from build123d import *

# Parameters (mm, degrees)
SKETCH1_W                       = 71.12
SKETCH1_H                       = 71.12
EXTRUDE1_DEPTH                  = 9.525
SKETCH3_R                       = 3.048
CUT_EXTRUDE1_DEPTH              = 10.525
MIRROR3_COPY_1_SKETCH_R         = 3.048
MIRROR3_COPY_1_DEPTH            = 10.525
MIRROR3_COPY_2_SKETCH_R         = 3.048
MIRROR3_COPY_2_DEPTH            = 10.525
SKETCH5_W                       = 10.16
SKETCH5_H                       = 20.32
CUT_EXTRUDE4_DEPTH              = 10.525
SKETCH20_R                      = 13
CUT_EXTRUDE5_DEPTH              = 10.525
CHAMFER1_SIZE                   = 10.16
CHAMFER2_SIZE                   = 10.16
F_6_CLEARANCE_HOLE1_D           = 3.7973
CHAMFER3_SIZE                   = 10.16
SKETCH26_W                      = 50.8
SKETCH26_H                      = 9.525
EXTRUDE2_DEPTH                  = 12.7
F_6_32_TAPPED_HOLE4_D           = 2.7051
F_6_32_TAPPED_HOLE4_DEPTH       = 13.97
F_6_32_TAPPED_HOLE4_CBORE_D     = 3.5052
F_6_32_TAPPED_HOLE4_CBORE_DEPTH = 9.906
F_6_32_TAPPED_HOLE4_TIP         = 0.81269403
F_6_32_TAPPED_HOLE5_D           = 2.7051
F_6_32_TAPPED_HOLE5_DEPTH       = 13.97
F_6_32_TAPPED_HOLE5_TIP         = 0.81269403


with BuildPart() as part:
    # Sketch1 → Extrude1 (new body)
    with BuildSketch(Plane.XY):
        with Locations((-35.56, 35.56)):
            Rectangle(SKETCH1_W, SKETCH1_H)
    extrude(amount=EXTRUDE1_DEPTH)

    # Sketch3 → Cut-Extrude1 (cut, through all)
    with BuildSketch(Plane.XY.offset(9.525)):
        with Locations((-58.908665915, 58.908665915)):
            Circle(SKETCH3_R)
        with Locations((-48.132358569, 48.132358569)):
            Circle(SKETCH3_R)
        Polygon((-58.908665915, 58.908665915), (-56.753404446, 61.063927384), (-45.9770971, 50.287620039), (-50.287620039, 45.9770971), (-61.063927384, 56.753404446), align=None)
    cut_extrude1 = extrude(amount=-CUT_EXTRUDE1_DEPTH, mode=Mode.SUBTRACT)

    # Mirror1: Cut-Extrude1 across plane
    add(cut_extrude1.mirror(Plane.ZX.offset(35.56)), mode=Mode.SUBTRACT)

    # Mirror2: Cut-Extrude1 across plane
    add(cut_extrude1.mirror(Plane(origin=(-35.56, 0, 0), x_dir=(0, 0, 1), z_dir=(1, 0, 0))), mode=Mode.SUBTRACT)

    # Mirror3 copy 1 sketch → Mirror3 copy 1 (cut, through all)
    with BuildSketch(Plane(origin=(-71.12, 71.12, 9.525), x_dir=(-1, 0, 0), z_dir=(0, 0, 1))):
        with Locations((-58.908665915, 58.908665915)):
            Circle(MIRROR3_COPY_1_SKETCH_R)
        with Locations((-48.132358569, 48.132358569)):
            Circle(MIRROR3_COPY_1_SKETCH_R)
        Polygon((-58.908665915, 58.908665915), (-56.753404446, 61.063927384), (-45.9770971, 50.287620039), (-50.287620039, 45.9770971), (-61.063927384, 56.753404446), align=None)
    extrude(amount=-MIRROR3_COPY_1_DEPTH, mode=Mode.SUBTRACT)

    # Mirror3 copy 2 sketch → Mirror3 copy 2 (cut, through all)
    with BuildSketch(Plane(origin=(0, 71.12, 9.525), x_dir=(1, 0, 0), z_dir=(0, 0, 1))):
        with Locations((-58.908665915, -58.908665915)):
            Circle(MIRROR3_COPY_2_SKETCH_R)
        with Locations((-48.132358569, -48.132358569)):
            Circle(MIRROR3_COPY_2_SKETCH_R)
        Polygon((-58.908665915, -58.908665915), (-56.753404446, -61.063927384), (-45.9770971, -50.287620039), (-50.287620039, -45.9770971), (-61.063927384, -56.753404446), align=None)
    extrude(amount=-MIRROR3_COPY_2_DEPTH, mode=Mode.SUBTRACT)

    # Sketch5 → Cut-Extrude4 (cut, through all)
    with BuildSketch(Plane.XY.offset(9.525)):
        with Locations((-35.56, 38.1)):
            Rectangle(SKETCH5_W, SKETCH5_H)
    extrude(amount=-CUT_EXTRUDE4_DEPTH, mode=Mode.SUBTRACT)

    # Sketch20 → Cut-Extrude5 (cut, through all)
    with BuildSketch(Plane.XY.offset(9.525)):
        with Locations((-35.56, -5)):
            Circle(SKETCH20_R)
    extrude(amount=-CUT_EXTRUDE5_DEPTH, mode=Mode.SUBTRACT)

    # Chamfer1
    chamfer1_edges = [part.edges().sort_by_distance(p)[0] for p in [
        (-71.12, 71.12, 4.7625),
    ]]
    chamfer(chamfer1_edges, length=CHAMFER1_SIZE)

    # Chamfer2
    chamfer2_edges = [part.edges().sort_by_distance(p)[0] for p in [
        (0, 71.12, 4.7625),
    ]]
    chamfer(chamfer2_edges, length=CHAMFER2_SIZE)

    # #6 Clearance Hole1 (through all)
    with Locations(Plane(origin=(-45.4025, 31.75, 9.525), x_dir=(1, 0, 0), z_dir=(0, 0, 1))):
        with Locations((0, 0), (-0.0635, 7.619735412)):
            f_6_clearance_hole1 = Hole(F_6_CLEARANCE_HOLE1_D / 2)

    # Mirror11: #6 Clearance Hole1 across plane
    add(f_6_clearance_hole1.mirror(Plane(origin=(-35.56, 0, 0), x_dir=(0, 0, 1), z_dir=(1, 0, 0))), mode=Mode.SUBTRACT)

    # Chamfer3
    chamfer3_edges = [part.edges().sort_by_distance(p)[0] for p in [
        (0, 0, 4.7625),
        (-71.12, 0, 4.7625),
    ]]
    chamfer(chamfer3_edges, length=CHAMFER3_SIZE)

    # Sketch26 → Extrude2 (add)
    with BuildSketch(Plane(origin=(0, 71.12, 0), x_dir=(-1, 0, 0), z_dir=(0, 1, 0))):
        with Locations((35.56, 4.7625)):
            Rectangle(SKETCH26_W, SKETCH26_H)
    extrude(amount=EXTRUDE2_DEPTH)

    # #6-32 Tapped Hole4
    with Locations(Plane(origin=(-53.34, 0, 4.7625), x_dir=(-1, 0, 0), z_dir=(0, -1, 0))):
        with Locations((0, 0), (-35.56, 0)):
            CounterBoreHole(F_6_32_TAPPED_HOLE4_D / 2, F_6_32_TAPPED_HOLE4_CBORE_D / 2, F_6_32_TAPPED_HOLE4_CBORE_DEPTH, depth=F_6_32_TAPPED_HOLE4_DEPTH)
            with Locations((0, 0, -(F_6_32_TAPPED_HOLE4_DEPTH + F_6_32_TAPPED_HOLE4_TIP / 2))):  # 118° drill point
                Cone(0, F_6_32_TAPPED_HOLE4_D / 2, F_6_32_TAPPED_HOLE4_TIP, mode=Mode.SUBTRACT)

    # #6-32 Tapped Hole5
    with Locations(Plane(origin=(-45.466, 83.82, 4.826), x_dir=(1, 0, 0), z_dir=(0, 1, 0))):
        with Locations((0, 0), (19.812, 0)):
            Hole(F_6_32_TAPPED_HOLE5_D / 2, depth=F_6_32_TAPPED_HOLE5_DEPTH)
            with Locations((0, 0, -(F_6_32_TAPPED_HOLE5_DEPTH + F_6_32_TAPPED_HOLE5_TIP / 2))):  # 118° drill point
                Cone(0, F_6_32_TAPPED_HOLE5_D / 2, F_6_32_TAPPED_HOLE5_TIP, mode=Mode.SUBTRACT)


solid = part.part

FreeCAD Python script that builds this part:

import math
import FreeCAD as App
import Part
import Sketcher
Q = App.Units.Quantity


def edges_at(feature, points):
    """Names of the edges that pass closest to the given points."""
    edges = feature.Shape.Edges
    near = lambda p: min(range(len(edges)), key=lambda i: edges[i].distToShape(Part.Vertex(*p))[0])
    return sorted({f"Edge{near(p) + 1}" for p in points})


def add_polygon(sketch, points):
    """Adds a closed chain of lines whose ends are joined by coincident constraints."""
    first, n = sketch.GeometryCount, len(points)
    for a, b in zip(points, points[1:] + points[:1]):
        sketch.addGeometry(Part.LineSegment(App.Vector(*a, 0), App.Vector(*b, 0)), False)
    for i in range(n):
        sketch.addConstraint(Sketcher.Constraint("Coincident", first + i, 2, first + (i + 1) % n, 1))

doc = App.newDocument("Part")
body = doc.addObject("PartDesign::Body", "Body")

sketch1 = body.newObject("Sketcher::SketchObject", "Sketch")
sketch1.AttachmentSupport = (doc.getObject("XY_Plane"), [""])
sketch1.MapMode = "FlatFace"
add_polygon(sketch1, [(-71.12, 71.12), (-71.12, 0), (0, 0), (0, 71.12)])
sketch1.addConstraint([
    Sketcher.Constraint("Vertical", 0),
    Sketcher.Constraint("Horizontal", 1),
    Sketcher.Constraint("Vertical", 2),
    Sketcher.Constraint("Horizontal", 3),
    Sketcher.Constraint("Coincident", 1, 2, -1, 1),
    Sketcher.Constraint("Equal", 3, 0),
    Sketcher.Constraint("DistanceX", 1, 1, 1, 2, Q("2.8 in")),
])
pad1 = body.newObject("PartDesign::Pad", "Pad")
pad1.Profile = sketch1
pad1.Length = Q("0.375 in")

sketch2 = body.newObject("Sketcher::SketchObject", "Sketch001")
sketch2.AttachmentSupport = (doc.getObject("XY_Plane"), [""])
sketch2.MapMode = "FlatFace"
sketch2.AttachmentOffset = App.Placement(App.Vector(0, 0, 0.375 * 25.4), App.Rotation())
sketch2.addGeometry([
    Part.LineSegment(App.Vector(-45.977097, 50.28762, 0), App.Vector(-56.753404, 61.063927, 0)),
    Part.ArcOfCircle(Part.Circle(App.Vector(-58.908666, 58.908666, 0), App.Vector(0, 0, 1), 3.048), math.radians(45), math.radians(225)),
    Part.LineSegment(App.Vector(-61.063927, 56.753404, 0), App.Vector(-50.28762, 45.977097, 0)),
    Part.ArcOfCircle(Part.Circle(App.Vector(-48.132359, 48.132359, 0), App.Vector(0, 0, 1), 3.048), math.radians(-135), math.radians(45)),
], False)
sketch2.addConstraint([
    Sketcher.Constraint("Tangent", 0, 2, 1, 1),
    Sketcher.Constraint("Tangent", 1, 2, 2, 1),
    Sketcher.Constraint("Tangent", 2, 2, 3, 1),
    Sketcher.Constraint("Tangent", 3, 2, 0, 1),
    Sketcher.Constraint("Equal", 1, 3),
    Sketcher.Constraint("Radius", 1, Q("0.12 in")),
    Sketcher.Constraint("Angle", 0, Q("135 deg")),
    Sketcher.Constraint("Distance", 0, Q("0.6 in")),
    Sketcher.Constraint("DistanceX", 3, 3, -1, 1, Q("48.132359 mm")),
    Sketcher.Constraint("DistanceY", -1, 1, 3, 3, Q("48.132359 mm")),
])
pocket1 = body.newObject("PartDesign::Pocket", "Pocket")
pocket1.Profile = sketch2
pocket1.Type = "ThroughAll"
doc.recompute()

datumplane = body.newObject("PartDesign::Plane", "DatumPlane")
datumplane.AttachmentSupport = (doc.getObject("XZ_Plane"), [""])
datumplane.MapMode = "FlatFace"
datumplane.AttachmentOffset = App.Placement(App.Vector(0, 0, -1.4 * 25.4), App.Rotation())
mirrored = body.newObject("PartDesign::Mirrored", "Mirrored")
mirrored.Originals = [pocket1]
mirrored.MirrorPlane = (datumplane, [""])
body.Tip = mirrored
doc.recompute()

datumplane2 = body.newObject("PartDesign::Plane", "DatumPlane001")
datumplane2.AttachmentSupport = (doc.getObject("YZ_Plane"), [""])
datumplane2.MapMode = "FlatFace"
datumplane2.AttachmentOffset = App.Placement(App.Vector(0, 0, -1.4 * 25.4), App.Rotation())
mirrored2 = body.newObject("PartDesign::Mirrored", "Mirrored001")
mirrored2.Originals = [pocket1]
mirrored2.MirrorPlane = (datumplane2, [""])
body.Tip = mirrored2

sketch3 = body.newObject("Sketcher::SketchObject", "Sketch002")
sketch3.AttachmentSupport = (doc.getObject("XY_Plane"), [""])
sketch3.MapMode = "FlatFace"
sketch3.AttachmentOffset = App.Placement(App.Vector(0, 0, 0.375 * 25.4), App.Rotation())
sketch3.addGeometry([
    Part.LineSegment(App.Vector(-25.142903, 20.83238, 0), App.Vector(-14.366596, 10.056073, 0)),
    Part.ArcOfCircle(Part.Circle(App.Vector(-12.211334, 12.211334, 0), App.Vector(0, 0, 1), 3.048), math.radians(-135), math.radians(45)),
    Part.LineSegment(App.Vector(-10.056073, 14.366596, 0), App.Vector(-20.83238, 25.142903, 0)),
    Part.ArcOfCircle(Part.Circle(App.Vector(-22.987641, 22.987641, 0), App.Vector(0, 0, 1), 3.048), math.radians(45), math.radians(225)),
], False)
sketch3.addConstraint([
    Sketcher.Constraint("Tangent", 0, 2, 1, 1),
    Sketcher.Constraint("Tangent", 1, 2, 2, 1),
    Sketcher.Constraint("Tangent", 2, 2, 3, 1),
    Sketcher.Constraint("Tangent", 3, 2, 0, 1),
    Sketcher.Constraint("Equal", 1, 3),
    Sketcher.Constraint("Radius", 1, Q("0.12 in")),
    Sketcher.Constraint("Angle", 0, Q("-45 deg")),
    Sketcher.Constraint("Distance", 0, Q("0.6 in")),
    Sketcher.Constraint("DistanceX", 3, 3, -1, 1, Q("22.987641 mm")),
    Sketcher.Constraint("DistanceY", -1, 1, 3, 3, Q("22.987641 mm")),
])
pocket2 = body.newObject("PartDesign::Pocket", "Pocket001")
pocket2.Profile = sketch3
pocket2.Type = "ThroughAll"

sketch4 = body.newObject("Sketcher::SketchObject", "Sketch003")
sketch4.AttachmentSupport = (doc.getObject("XY_Plane"), [""])
sketch4.MapMode = "FlatFace"
sketch4.AttachmentOffset = App.Placement(App.Vector(0, 0, 0.375 * 25.4), App.Rotation())
sketch4.addGeometry([
    Part.LineSegment(App.Vector(-56.753404, 10.056073, 0), App.Vector(-45.977097, 20.83238, 0)),
    Part.ArcOfCircle(Part.Circle(App.Vector(-48.132359, 22.987641, 0), App.Vector(0, 0, 1), 3.048), math.radians(-45), math.radians(135)),
    Part.LineSegment(App.Vector(-50.28762, 25.142903, 0), App.Vector(-61.063927, 14.366596, 0)),
    Part.ArcOfCircle(Part.Circle(App.Vector(-58.908666, 12.211334, 0), App.Vector(0, 0, 1), 3.048), math.radians(135), math.radians(315)),
], False)
sketch4.addConstraint([
    Sketcher.Constraint("Tangent", 0, 2, 1, 1),
    Sketcher.Constraint("Tangent", 1, 2, 2, 1),
    Sketcher.Constraint("Tangent", 2, 2, 3, 1),
    Sketcher.Constraint("Tangent", 3, 2, 0, 1),
    Sketcher.Constraint("Equal", 1, 3),
    Sketcher.Constraint("Radius", 1, Q("0.12 in")),
    Sketcher.Constraint("Angle", 0, Q("45 deg")),
    Sketcher.Constraint("Distance", 0, Q("0.6 in")),
    Sketcher.Constraint("DistanceX", 1, 3, -1, 1, Q("48.132359 mm")),
    Sketcher.Constraint("DistanceY", -1, 1, 1, 3, Q("22.987641 mm")),
])
pocket3 = body.newObject("PartDesign::Pocket", "Pocket002")
pocket3.Profile = sketch4
pocket3.Type = "ThroughAll"

sketch5 = body.newObject("Sketcher::SketchObject", "Sketch004")
sketch5.AttachmentSupport = (doc.getObject("XY_Plane"), [""])
sketch5.MapMode = "FlatFace"
sketch5.AttachmentOffset = App.Placement(App.Vector(0, 0, 0.375 * 25.4), App.Rotation())
add_polygon(sketch5, [(-40.64, 48.26), (-40.64, 27.94), (-30.48, 27.94), (-30.48, 48.26)])
sketch5.addConstraint([
    Sketcher.Constraint("Vertical", 0),
    Sketcher.Constraint("Horizontal", 1),
    Sketcher.Constraint("Vertical", 2),
    Sketcher.Constraint("Horizontal", 3),
    Sketcher.Constraint("DistanceX", 1, 1, 1, 2, Q("0.4 in")),
    Sketcher.Constraint("DistanceY", 0, 2, 0, 1, Q("0.8 in")),
    Sketcher.Constraint("DistanceX", 0, 2, -1, 1, Q("1.6 in")),
    Sketcher.Constraint("DistanceY", -1, 1, 0, 2, Q("1.1 in")),
])
pocket4 = body.newObject("PartDesign::Pocket", "Pocket003")
pocket4.Profile = sketch5
pocket4.Type = "ThroughAll"

sketch6 = body.newObject("Sketcher::SketchObject", "Sketch005")
sketch6.AttachmentSupport = (doc.getObject("XY_Plane"), [""])
sketch6.MapMode = "FlatFace"
sketch6.AttachmentOffset = App.Placement(App.Vector(0, 0, 0.375 * 25.4), App.Rotation())
sketch6.addGeometry(Part.Circle(App.Vector(-35.56, -5, 0), App.Vector(0, 0, 1), 13), False)
sketch6.addConstraint([
    Sketcher.Constraint("DistanceX", 0, 3, -1, 1, Q("1.4 in")),
    Sketcher.Constraint("Diameter", 0, Q("26 mm")),
    Sketcher.Constraint("DistanceY", 0, 3, -1, 1, Q("5 mm")),
])
pocket5 = body.newObject("PartDesign::Pocket", "Pocket004")
pocket5.Profile = sketch6
pocket5.Type = "ThroughAll"
doc.recompute()

chamfer = body.newObject("PartDesign::Chamfer", "Chamfer")
chamfer.Base = (pocket5, edges_at(pocket5, [(-71.12, 71.12, 4.763)]))
chamfer.Size = Q("0.4 in")
doc.recompute()

chamfer2 = body.newObject("PartDesign::Chamfer", "Chamfer001")
chamfer2.Base = (chamfer, edges_at(chamfer, [(0, 71.12, 4.763)]))
chamfer2.Size = Q("0.4 in")

sketch7 = body.newObject("Sketcher::SketchObject", "Sketch006")
sketch7.AttachmentSupport = (doc.getObject("XY_Plane"), [""])
sketch7.MapMode = "FlatFace"
sketch7.AttachmentOffset = App.Placement(App.Vector(0, 0, 0.375 * 25.4), App.Rotation())
sketch7.addGeometry([
    Part.Circle(App.Vector(-45.4025, 31.75, 0), App.Vector(0, 0, 1), 1.89865),
    Part.Circle(App.Vector(-45.466, 39.369735, 0), App.Vector(0, 0, 1), 1.89865),
], False)
sketch7.addConstraint([
    Sketcher.Constraint("Equal", 0, 1),
    Sketcher.Constraint("Diameter", 0, Q("0.1495 in")),
    Sketcher.Constraint("DistanceY", -1, 1, 0, 3, Q("1.25 in")),
    Sketcher.Constraint("DistanceX", 1, 3, -1, 1, Q("1.79 in")),
    Sketcher.Constraint("DistanceX", 0, 3, -1, 1, Q("1.7875 in")),
    Sketcher.Constraint("DistanceY", -1, 1, 1, 3, Q("39.369735 mm")),
])
doc.recompute()
hole = body.newObject("PartDesign::Hole", "Hole")
hole.Profile = sketch7
hole.ThreadType = "None"
hole.Diameter = Q("0.1495 in")
hole.DepthType = "ThroughAll"
doc.recompute()

datumplane3 = body.newObject("PartDesign::Plane", "DatumPlane002")
datumplane3.AttachmentSupport = (doc.getObject("YZ_Plane"), [""])
datumplane3.MapMode = "FlatFace"
datumplane3.AttachmentOffset = App.Placement(App.Vector(0, 0, -1.4 * 25.4), App.Rotation())
mirrored3 = body.newObject("PartDesign::Mirrored", "Mirrored002")
mirrored3.Originals = [hole]
mirrored3.MirrorPlane = (datumplane3, [""])
body.Tip = mirrored3
doc.recompute()

chamfer3 = body.newObject("PartDesign::Chamfer", "Chamfer002")
chamfer3.Base = (mirrored3, edges_at(mirrored3, [(0, 0, 4.763), (-71.12, 0, 4.763)]))
chamfer3.Size = Q("0.4 in")

sketch8 = body.newObject("Sketcher::SketchObject", "Sketch007")
sketch8.AttachmentSupport = (doc.getObject("XZ_Plane"), [""])
sketch8.MapMode = "FlatFace"
sketch8.AttachmentOffset = App.Placement(App.Vector(0, 0, -2.8 * 25.4), App.Rotation())
add_polygon(sketch8, [(-10.16, 9.525), (-10.16, 0), (-60.96, 0), (-60.96, 9.525)])
sketch8.addConstraint([
    Sketcher.Constraint("Vertical", 0),
    Sketcher.Constraint("Horizontal", 1),
    Sketcher.Constraint("Vertical", 2),
    Sketcher.Constraint("Horizontal", 3),
    Sketcher.Constraint("PointOnObject", 0, 2, -1),
    Sketcher.Constraint("DistanceX", 1, 2, 1, 1, Q("2 in")),
    Sketcher.Constraint("DistanceX", 0, 2, -1, 1, Q("0.4 in")),
    Sketcher.Constraint("DistanceY", 0, 2, 0, 1, Q("0.375 in")),
])
pad2 = body.newObject("PartDesign::Pad", "Pad001")
pad2.Profile = sketch8
pad2.Length = Q("0.5 in")
pad2.Reversed = True

sketch9 = body.newObject("Sketcher::SketchObject", "Sketch008")
sketch9.AttachmentSupport = (doc.getObject("XZ_Plane"), [""])
sketch9.MapMode = "FlatFace"
sketch9.addGeometry([
    Part.Circle(App.Vector(-53.34, 4.7625, 0), App.Vector(0, 0, 1), 1.35255),
    Part.Circle(App.Vector(-17.78, 4.7625, 0), App.Vector(0, 0, 1), 1.35255),
], False)
sketch9.addConstraint([
    Sketcher.Constraint("Equal", 0, 1),
    Sketcher.Constraint("Horizontal", 0, 3, 1, 3),
    Sketcher.Constraint("Diameter", 0, Q("0.1065 in")),
    Sketcher.Constraint("DistanceX", 0, 3, -1, 1, Q("2.1 in")),
    Sketcher.Constraint("DistanceX", 1, 3, -1, 1, Q("0.7 in")),
    Sketcher.Constraint("DistanceY", -1, 1, 0, 3, Q("0.1875 in")),
])
doc.recompute()
hole2 = body.newObject("PartDesign::Hole", "Hole001")
hole2.Profile = sketch9
hole2.ThreadType = "None"
hole2.Diameter = Q("0.1065 in")
hole2.DepthType = "Dimension"
hole2.Depth = Q("0.55 in")
hole2.DrillPoint = "Angled"
hole2.DrillPointAngle = 118
hole2.HoleCutType = "Counterbore"
hole2.HoleCutDiameter = Q("0.138 in")
hole2.HoleCutDepth = Q("0.39 in")

sketch10 = body.newObject("Sketcher::SketchObject", "Sketch009")
sketch10.AttachmentSupport = (doc.getObject("XZ_Plane"), [""])
sketch10.MapMode = "FlatFace"
sketch10.AttachmentOffset = App.Placement(App.Vector(0, 0, -3.3 * 25.4), App.Rotation())
sketch10.addGeometry([
    Part.Circle(App.Vector(-45.466, 4.826, 0), App.Vector(0, 0, 1), 1.35255),
    Part.Circle(App.Vector(-25.654, 4.826, 0), App.Vector(0, 0, 1), 1.35255),
], False)
sketch10.addConstraint([
    Sketcher.Constraint("Equal", 0, 1),
    Sketcher.Constraint("Horizontal", 0, 3, 1, 3),
    Sketcher.Constraint("Diameter", 0, Q("0.1065 in")),
    Sketcher.Constraint("DistanceX", 0, 3, -1, 1, Q("1.79 in")),
    Sketcher.Constraint("DistanceY", -1, 1, 0, 3, Q("0.19 in")),
    Sketcher.Constraint("DistanceX", 1, 3, -1, 1, Q("1.01 in")),
])
doc.recompute()
hole3 = body.newObject("PartDesign::Hole", "Hole002")
hole3.Profile = sketch10
hole3.ThreadType = "None"
hole3.Diameter = Q("0.1065 in")
hole3.DepthType = "Dimension"
hole3.Depth = Q("0.55 in")
hole3.DrillPoint = "Angled"
hole3.DrillPointAngle = 118
hole3.Reversed = True

doc.recompute()
